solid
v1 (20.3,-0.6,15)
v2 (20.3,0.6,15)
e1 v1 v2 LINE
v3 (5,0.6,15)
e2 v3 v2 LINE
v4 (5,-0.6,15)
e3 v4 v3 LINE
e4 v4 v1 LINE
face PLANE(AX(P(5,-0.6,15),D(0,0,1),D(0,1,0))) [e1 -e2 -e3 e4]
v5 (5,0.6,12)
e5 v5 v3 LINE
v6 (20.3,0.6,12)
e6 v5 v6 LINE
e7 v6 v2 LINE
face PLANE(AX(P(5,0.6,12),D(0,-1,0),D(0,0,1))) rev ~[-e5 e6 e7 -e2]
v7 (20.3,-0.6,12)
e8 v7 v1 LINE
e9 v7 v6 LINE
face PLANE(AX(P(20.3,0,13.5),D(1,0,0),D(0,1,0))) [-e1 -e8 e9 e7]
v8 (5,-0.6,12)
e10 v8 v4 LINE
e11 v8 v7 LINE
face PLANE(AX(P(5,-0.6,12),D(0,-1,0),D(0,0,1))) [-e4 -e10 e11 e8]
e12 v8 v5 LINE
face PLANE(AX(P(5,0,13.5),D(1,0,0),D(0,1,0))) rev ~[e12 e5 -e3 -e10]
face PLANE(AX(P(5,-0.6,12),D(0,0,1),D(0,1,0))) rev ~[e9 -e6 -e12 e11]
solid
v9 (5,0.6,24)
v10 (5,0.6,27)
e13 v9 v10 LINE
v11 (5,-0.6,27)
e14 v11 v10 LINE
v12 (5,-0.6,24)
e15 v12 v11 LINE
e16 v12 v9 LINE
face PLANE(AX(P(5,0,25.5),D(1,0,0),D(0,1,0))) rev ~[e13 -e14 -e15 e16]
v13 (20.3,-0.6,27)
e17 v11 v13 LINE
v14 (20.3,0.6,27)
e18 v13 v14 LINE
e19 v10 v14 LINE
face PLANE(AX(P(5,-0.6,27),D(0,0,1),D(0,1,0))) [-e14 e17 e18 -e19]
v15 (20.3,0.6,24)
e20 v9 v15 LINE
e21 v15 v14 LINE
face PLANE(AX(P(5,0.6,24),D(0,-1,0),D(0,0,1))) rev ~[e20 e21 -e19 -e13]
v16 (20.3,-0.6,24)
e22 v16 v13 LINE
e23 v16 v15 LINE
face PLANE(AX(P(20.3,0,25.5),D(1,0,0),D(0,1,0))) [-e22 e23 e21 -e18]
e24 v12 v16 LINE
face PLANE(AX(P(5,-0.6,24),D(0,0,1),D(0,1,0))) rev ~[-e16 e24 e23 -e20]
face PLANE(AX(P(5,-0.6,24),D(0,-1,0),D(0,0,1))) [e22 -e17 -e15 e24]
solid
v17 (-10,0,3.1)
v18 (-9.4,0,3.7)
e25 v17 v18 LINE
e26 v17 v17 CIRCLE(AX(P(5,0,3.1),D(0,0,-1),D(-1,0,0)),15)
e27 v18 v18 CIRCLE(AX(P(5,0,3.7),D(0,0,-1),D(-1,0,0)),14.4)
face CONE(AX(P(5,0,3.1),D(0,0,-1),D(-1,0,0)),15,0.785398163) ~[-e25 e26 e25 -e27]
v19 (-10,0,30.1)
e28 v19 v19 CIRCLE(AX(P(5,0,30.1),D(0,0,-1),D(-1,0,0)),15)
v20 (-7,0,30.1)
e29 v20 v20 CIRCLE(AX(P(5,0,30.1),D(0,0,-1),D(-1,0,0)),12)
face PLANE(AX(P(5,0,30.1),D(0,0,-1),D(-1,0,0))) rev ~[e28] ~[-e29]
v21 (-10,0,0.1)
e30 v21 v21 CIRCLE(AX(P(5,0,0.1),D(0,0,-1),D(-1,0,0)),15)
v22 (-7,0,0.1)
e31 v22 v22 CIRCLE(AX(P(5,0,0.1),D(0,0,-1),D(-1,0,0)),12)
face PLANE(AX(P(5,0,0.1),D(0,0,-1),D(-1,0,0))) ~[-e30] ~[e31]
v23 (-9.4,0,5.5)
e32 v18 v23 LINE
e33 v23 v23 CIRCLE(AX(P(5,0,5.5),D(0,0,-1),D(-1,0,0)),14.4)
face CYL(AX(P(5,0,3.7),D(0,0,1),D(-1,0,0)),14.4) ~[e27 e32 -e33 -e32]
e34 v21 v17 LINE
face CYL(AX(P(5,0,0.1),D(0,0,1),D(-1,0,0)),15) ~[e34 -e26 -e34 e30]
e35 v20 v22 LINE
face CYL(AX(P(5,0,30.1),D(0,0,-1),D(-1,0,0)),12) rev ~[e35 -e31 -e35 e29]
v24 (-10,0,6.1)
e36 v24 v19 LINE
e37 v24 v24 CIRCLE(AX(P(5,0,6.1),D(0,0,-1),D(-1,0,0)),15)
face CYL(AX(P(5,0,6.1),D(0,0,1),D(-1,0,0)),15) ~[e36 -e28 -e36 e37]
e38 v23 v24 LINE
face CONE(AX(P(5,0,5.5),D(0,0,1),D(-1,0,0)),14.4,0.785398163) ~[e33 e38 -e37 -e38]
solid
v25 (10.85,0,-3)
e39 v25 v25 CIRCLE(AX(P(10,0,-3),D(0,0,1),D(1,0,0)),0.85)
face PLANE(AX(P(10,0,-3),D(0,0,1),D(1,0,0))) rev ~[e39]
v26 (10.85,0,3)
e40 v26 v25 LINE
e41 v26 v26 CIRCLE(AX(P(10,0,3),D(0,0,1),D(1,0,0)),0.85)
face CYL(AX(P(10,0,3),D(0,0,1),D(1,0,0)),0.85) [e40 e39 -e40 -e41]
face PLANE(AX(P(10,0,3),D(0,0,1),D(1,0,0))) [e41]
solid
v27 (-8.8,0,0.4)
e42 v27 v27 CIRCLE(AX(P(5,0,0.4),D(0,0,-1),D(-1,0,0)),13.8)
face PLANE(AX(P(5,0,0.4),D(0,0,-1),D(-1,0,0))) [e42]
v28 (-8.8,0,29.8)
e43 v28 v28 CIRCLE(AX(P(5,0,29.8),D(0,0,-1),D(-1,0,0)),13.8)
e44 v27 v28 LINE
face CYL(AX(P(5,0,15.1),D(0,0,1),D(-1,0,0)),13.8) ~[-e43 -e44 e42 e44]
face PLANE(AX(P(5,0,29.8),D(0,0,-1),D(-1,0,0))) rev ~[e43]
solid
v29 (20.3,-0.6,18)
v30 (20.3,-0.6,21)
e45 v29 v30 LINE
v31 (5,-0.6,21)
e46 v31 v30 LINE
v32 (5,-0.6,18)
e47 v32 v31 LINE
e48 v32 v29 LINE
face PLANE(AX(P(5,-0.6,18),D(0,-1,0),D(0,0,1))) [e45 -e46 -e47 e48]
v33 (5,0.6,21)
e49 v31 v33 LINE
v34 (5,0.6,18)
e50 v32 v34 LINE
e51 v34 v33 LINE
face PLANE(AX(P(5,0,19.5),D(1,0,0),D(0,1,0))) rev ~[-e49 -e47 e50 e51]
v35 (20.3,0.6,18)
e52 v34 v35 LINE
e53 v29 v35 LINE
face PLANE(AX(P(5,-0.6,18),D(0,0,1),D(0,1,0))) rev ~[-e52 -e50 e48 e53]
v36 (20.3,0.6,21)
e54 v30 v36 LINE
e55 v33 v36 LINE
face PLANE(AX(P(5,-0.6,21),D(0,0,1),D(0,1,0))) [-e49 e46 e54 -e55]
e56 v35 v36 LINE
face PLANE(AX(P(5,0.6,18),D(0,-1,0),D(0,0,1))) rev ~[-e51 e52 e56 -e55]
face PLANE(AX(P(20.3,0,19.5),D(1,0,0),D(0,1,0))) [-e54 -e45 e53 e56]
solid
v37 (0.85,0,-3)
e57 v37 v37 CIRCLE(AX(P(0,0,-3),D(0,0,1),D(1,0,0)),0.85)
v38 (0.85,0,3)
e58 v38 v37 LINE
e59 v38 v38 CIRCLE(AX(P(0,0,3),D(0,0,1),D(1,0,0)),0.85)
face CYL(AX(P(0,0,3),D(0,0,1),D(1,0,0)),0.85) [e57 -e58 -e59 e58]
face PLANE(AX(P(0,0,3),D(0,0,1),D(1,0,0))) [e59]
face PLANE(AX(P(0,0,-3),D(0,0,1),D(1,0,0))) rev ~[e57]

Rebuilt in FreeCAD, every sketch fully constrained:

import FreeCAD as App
import Part
import Sketcher
from FreeCAD import Vector
Q = App.Units.Quantity

doc = App.newDocument("Part")
body = doc.addObject("PartDesign::Body", "Body")

sketch1 = doc.addObject("Sketcher::SketchObject", "Sketch")
body.addObject(sketch1)
sketch1.AttachmentSupport = (doc.XZ_Plane, [""])
sketch1.MapMode = "FlatFace"
sketch1.addGeometry([
    Part.LineSegment(Vector(-10, 3.1, 0), Vector(-10, 0.1, 0)),
    Part.LineSegment(Vector(-10, 0.1, 0), Vector(-7, 0.1, 0)),
    Part.LineSegment(Vector(-7, 0.1, 0), Vector(-7, 30.1, 0)),
    Part.LineSegment(Vector(-7, 30.1, 0), Vector(-10, 30.1, 0)),
    Part.LineSegment(Vector(-10, 30.1, 0), Vector(-10, 6.1, 0)),
    Part.LineSegment(Vector(-10, 6.1, 0), Vector(-9.4, 5.5, 0)),
    Part.LineSegment(Vector(-9.4, 5.5, 0), Vector(-9.4, 3.7, 0)),
    Part.LineSegment(Vector(-9.4, 3.7, 0), Vector(-10, 3.1, 0)),
], False)
sketch1.addGeometry(Part.LineSegment(Vector(5, 30.1, 0), Vector(5, 0.1, 0)), True)
sketch1.addConstraint([
    Sketcher.Constraint("Coincident", 0, 2, 1, 1),
    Sketcher.Constraint("Coincident", 1, 2, 2, 1),
    Sketcher.Constraint("Coincident", 2, 2, 3, 1),
    Sketcher.Constraint("Coincident", 3, 2, 4, 1),
    Sketcher.Constraint("Coincident", 4, 2, 5, 1),
    Sketcher.Constraint("Coincident", 5, 2, 6, 1),
    Sketcher.Constraint("Coincident", 6, 2, 7, 1),
    Sketcher.Constraint("Coincident", 7, 2, 0, 1),
    Sketcher.Constraint("Vertical", 0),
    Sketcher.Constraint("Horizontal", 1),
    Sketcher.Constraint("Vertical", 2),
    Sketcher.Constraint("Horizontal", 3),
    Sketcher.Constraint("Vertical", 4),
    Sketcher.Constraint("Vertical", 6),
    Sketcher.Constraint("Vertical", 8),
    Sketcher.Constraint("Perpendicular", 5, 7),
    Sketcher.Constraint("Horizontal", 3, 2, 8, 1),
    Sketcher.Constraint("Horizontal", 1, 2, 8, 2),
    Sketcher.Constraint("Vertical", 0, 2, 3, 2),
    Sketcher.Constraint("Equal", 3, 0),
    Sketcher.Constraint("Equal", 5, 7),
    Sketcher.Constraint("DistanceX", 1, 1, 1, 2, Q("3 mm")),
    Sketcher.Constraint("DistanceY", 2, 1, 2, 2, Q("30 mm")),
    Sketcher.Constraint("DistanceY", 4, 2, 4, 1, Q("24 mm")),
    Sketcher.Constraint("DistanceY", 6, 2, 6, 1, Q("1.8 mm")),
    Sketcher.Constraint("DistanceX", 0, 2, -1, 1, Q("10 mm")),
    Sketcher.Constraint("DistanceX", -1, 1, 8, 1, Q("5 mm")),
    Sketcher.Constraint("DistanceY", -1, 1, 0, 2, Q("0.1 mm")),
])
revolution = doc.addObject("PartDesign::Revolution", "Revolution")
body.addObject(revolution)
revolution.Profile = sketch1
revolution.ReferenceAxis = (sketch1, ["Axis0"])
revolution.Angle = 360
body2 = doc.addObject("PartDesign::Body", "Body001")

sketch2 = doc.addObject("Sketcher::SketchObject", "Sketch001")
body2.addObject(sketch2)
sketch2.AttachmentSupport = (doc.getObject("XZ_Plane001"), [""])
sketch2.MapMode = "FlatFace"
sketch2.addGeometry([
    Part.LineSegment(Vector(-9, 30, 0), Vector(-9, 0, 0)),
    Part.LineSegment(Vector(-9, 0, 0), Vector(5, 0, 0)),
    Part.LineSegment(Vector(5, 0, 0), Vector(5, 30, 0)),
    Part.LineSegment(Vector(5, 30, 0), Vector(-9, 30, 0)),
], False)
sketch2.addGeometry(Part.LineSegment(Vector(5, 30, 0), Vector(5, 0, 0)), True)
sketch2.addConstraint([
    Sketcher.Constraint("Coincident", 0, 2, 1, 1),
    Sketcher.Constraint("Coincident", 1, 2, 2, 1),
    Sketcher.Constraint("Coincident", 2, 2, 3, 1),
    Sketcher.Constraint("Coincident", 3, 2, 0, 1),
    Sketcher.Constraint("Vertical", 0),
    Sketcher.Constraint("Horizontal", 1),
    Sketcher.Constraint("Vertical", 2),
    Sketcher.Constraint("Horizontal", 3),
    Sketcher.Constraint("Vertical", 4),
    Sketcher.Constraint("Coincident", 4, 1, 2, 2),
    Sketcher.Constraint("Horizontal", 0, 2, 4, 2),
    Sketcher.Constraint("DistanceX", 1, 1, 1, 2, Q("13.8 mm")),
    Sketcher.Constraint("DistanceY", 0, 2, 0, 1, Q("29.4 mm")),
    Sketcher.Constraint("DistanceX", -1, 1, 1, 2, Q("5 mm")),
    Sketcher.Constraint("DistanceY", -1, 1, 0, 2, Q("0.4 mm")),
])
revolution2 = doc.addObject("PartDesign::Revolution", "Revolution001")
body2.addObject(revolution2)
revolution2.Profile = sketch2
revolution2.ReferenceAxis = (sketch2, ["Axis0"])
revolution2.Angle = 360
body3 = doc.addObject("PartDesign::Body", "Body002")
body3.AllowCompound = True

sketch3 = doc.addObject("Sketcher::SketchObject", "Sketch002")
body3.addObject(sketch3)
sketch3.AttachmentSupport = (doc.getObject("XY_Plane002"), [""])
sketch3.MapMode = "FlatFace"
sketch3.AttachmentOffset = App.Placement(Vector(0, 0, 3), App.Rotation())
sketch3.addGeometry([
    Part.Circle(Vector(0, 0, 0), Vector(0, 0, 1), 0.8),
    Part.Circle(Vector(10, 0, 0), Vector(0, 0, 1), 0.8),
], False)
sketch3.addConstraint([
    Sketcher.Constraint("Coincident", 0, 3, -1, 1),
    Sketcher.Constraint("Equal", 0, 1),
    Sketcher.Constraint("PointOnObject", 1, 3, -1),
    Sketcher.Constraint("Diameter", 0, Q("1.7 mm")),
    Sketcher.Constraint("DistanceX", -1, 1, 1, 3, Q("10 mm")),
])
pad1 = doc.addObject("PartDesign::Pad", "Pad")
body3.addObject(pad1)
pad1.Profile = sketch3
pad1.Length = 6
pad1.Reversed = True
body4 = doc.addObject("PartDesign::Body", "Body003")
body4.AllowCompound = True

sketch4 = doc.addObject("Sketcher::SketchObject", "Sketch003")
body4.addObject(sketch4)
sketch4.AttachmentSupport = (doc.getObject("YZ_Plane003"), [""])
sketch4.MapMode = "FlatFace"
sketch4.AttachmentOffset = App.Placement(Vector(0, 0, 5), App.Rotation())
sketch4.addGeometry([
    Part.LineSegment(Vector(-0.6, 15, 0), Vector(-0.6, 12, 0)),
    Part.LineSegment(Vector(-0.6, 12, 0), Vector(0.6, 12, 0)),
    Part.LineSegment(Vector(0.6, 12, 0), Vector(0.6, 15, 0)),
    Part.LineSegment(Vector(0.6, 15, 0), Vector(-0.6, 15, 0)),
    Part.LineSegment(Vector(-0.6, 21, 0), Vector(-0.6, 18, 0)),
    Part.LineSegment(Vector(-0.6, 18, 0), Vector(0.6, 18, 0)),
    Part.LineSegment(Vector(0.6, 18, 0), Vector(0.6, 21, 0)),
    Part.LineSegment(Vector(0.6, 21, 0), Vector(-0.6, 21, 0)),
    Part.LineSegment(Vector(-0.6, 27, 0), Vector(-0.6, 24, 0)),
    Part.LineSegment(Vector(-0.6, 24, 0), Vector(0.6, 24, 0)),
    Part.LineSegment(Vector(0.6, 24, 0), Vector(0.6, 27, 0)),
    Part.LineSegment(Vector(0.6, 27, 0), Vector(-0.6, 27, 0)),
], False)
sketch4.addConstraint([
    Sketcher.Constraint("Coincident", 0, 2, 1, 1),
    Sketcher.Constraint("Coincident", 1, 2, 2, 1),
    Sketcher.Constraint("Coincident", 2, 2, 3, 1),
    Sketcher.Constraint("Coincident", 3, 2, 0, 1),
    Sketcher.Constraint("Coincident", 4, 2, 5, 1),
    Sketcher.Constraint("Coincident", 5, 2, 6, 1),
    Sketcher.Constraint("Coincident", 6, 2, 7, 1),
    Sketcher.Constraint("Coincident", 7, 2, 4, 1),
    Sketcher.Constraint("Coincident", 8, 2, 9, 1),
    Sketcher.Constraint("Coincident", 9, 2, 10, 1),
    Sketcher.Constraint("Coincident", 10, 2, 11, 1),
    Sketcher.Constraint("Coincident", 11, 2, 8, 1),
    Sketcher.Constraint("Vertical", 0),
    Sketcher.Constraint("Horizontal", 1),
    Sketcher.Constraint("Vertical", 2),
    Sketcher.Constraint("Horizontal", 3),
    Sketcher.Constraint("Vertical", 4),
    Sketcher.Constraint("Horizontal", 5),
    Sketcher.Constraint("Vertical", 6),
    Sketcher.Constraint("Horizontal", 7),
    Sketcher.Constraint("Vertical", 8),
    Sketcher.Constraint("Horizontal", 9),
    Sketcher.Constraint("Vertical", 10),
    Sketcher.Constraint("Horizontal", 11),
    Sketcher.Constraint("Vertical", 3, 2, 4, 2),
    Sketcher.Constraint("Vertical", 2, 2, 5, 2),
    Sketcher.Constraint("Vertical", 7, 2, 8, 2),
    Sketcher.Constraint("Vertical", 6, 2, 9, 2),
    Sketcher.Constraint("Equal", 2, 4),
    Sketcher.Constraint("Equal", 6, 8),
    Sketcher.Constraint("DistanceY", 0, 2, 0, 1, Q("3 mm")),
    Sketcher.Constraint("DistanceX", 1, 1, 1, 2, Q("1.2 mm")),
    Sketcher.Constraint("DistanceY", -1, 1, 0, 2, Q("12 mm")),
    Sketcher.Constraint("DistanceY", -1, 1, 4, 2, Q("18 mm")),
    Sketcher.Constraint("DistanceY", -1, 1, 8, 2, Q("24 mm")),
    Sketcher.Constraint("DistanceX", 0, 2, -1, 1, Q("0.6 mm")),
])
pad2 = doc.addObject("PartDesign::Pad", "Pad001")
body4.addObject(pad2)
pad2.Profile = sketch4
pad2.Length = 15.3

doc.recompute()
